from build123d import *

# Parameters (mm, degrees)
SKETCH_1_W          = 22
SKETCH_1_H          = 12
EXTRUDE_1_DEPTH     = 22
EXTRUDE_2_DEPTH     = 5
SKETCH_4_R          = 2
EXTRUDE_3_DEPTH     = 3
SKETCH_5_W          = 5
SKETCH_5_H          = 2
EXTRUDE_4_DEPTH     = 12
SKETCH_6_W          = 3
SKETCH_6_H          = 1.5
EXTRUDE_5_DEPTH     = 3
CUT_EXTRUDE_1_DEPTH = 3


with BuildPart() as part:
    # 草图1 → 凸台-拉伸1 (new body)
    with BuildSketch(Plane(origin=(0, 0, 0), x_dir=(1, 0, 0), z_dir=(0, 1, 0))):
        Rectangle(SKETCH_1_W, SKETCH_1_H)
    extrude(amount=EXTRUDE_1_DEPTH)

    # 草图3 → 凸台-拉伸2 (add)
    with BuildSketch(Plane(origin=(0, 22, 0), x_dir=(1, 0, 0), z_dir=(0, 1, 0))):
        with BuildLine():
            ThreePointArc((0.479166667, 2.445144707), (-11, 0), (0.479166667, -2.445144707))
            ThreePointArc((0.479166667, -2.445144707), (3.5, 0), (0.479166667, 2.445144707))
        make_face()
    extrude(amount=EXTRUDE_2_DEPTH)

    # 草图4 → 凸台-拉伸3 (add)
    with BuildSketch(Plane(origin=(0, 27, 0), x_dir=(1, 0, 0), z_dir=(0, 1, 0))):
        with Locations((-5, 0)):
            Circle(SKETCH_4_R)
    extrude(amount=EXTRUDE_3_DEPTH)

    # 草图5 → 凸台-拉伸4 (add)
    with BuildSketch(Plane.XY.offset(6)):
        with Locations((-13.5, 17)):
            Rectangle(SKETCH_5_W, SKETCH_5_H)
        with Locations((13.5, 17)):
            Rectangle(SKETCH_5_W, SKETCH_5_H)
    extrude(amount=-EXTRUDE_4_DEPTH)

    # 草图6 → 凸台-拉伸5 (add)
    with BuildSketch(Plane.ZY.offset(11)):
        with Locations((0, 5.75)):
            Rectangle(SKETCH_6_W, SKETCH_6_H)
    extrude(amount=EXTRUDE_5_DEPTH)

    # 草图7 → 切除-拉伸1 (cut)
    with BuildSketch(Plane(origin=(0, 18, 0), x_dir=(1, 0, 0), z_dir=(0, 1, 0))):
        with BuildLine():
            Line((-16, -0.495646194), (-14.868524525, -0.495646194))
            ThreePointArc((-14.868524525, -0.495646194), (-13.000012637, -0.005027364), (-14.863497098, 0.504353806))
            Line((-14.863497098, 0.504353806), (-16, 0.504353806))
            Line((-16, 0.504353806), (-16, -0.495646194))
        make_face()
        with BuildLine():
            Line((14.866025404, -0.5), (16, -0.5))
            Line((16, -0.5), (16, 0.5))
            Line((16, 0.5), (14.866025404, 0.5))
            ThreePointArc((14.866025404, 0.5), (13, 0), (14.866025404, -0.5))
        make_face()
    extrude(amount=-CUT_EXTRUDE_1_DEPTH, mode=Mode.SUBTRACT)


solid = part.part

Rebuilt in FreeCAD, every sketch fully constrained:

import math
import FreeCAD as App
import Part
import Sketcher

V = App.Vector
Q = App.Units.Quantity

doc = App.newDocument("Part")
params = doc.addObject("Spreadsheet::Sheet", "Params")
for row, (alias, value) in enumerate([
    ("sketch1_width", "22 mm"),
    ("sketch1_height", "12 mm"),
    ("pad1_length", "22 mm"),
    ("sketch2_radius", "6 mm"),
    ("sketch2_radius2", "2.5 mm"),
    ("pad2_length", "5 mm"),
    ("sketch3_diameter", "4 mm"),
    ("pad3_length", "3 mm"),
    ("sketch4_width", "5 mm"),
    ("sketch4_height", "2 mm"),
    ("pad4_length", "12 mm"),
    ("sketch5_height", "3 mm"),
    ("sketch5_width", "1.5 mm"),
    ("pad5_length", "3 mm"),
    ("sketch6_radius", "1 mm"),
    ("sketch6_height", "1 mm"),
    ("pocket1_length", "3 mm"),
], start=1):
    params.set(f"A{row}", alias)
    params.set(f"B{row}", "=" + value)
    params.setAlias(f"B{row}", alias)

body = doc.addObject("PartDesign::Body", "Body")

sketch1 = doc.addObject("Sketcher::SketchObject", "Sketch")
body.addObject(sketch1)
sketch1.AttachmentSupport = (doc.XZ_Plane, [""])
sketch1.MapMode = "FlatFace"
sketch1.addGeometry([
    Part.LineSegment(V(-11, -6, 0), V(-11, 6, 0)),
    Part.LineSegment(V(-11, 6, 0), V(11, 6, 0)),
    Part.LineSegment(V(11, 6, 0), V(11, -6, 0)),
    Part.LineSegment(V(11, -6, 0), V(-11, -6, 0)),
], False)
sketch1.addConstraint([
    Sketcher.Constraint("Coincident", 0, 2, 1, 1),
    Sketcher.Constraint("Coincident", 1, 2, 2, 1),
    Sketcher.Constraint("Coincident", 2, 2, 3, 1),
    Sketcher.Constraint("Coincident", 3, 2, 0, 1),
    Sketcher.Constraint("Vertical", 0),
    Sketcher.Constraint("Horizontal", 1),
    Sketcher.Constraint("Vertical", 2),
    Sketcher.Constraint("Horizontal", 3),
    Sketcher.Constraint("Symmetric", 0, 2, 2, 2, -1, 1),
    Sketcher.Constraint("DistanceX", 1, 1, 1, 2, Q("22 mm")),
    Sketcher.Constraint("DistanceY", 0, 1, 0, 2, Q("12 mm")),
])
sketch1.setExpression("Constraints[9]", "Params.sketch1_width")
sketch1.setExpression("Constraints[10]", "Params.sketch1_height")
pad1 = doc.addObject("PartDesign::Pad", "Pad")
body.addObject(pad1)
pad1.Profile = sketch1
pad1.setExpression("Length", "Params.pad1_length")
pad1.Reversed = True

sketch2 = doc.addObject("Sketcher::SketchObject", "Sketch001")
body.addObject(sketch2)
sketch2.AttachmentSupport = (doc.XZ_Plane, [""])
sketch2.MapMode = "FlatFace"
sketch2.AttachmentOffset = App.Placement(V(0, 0, -22), App.Rotation())
sketch2.addGeometry([
    Part.ArcOfCircle(Part.Circle(V(-5, 0, 0), V(0, 0, 1), 6), math.radians(24), math.radians(336)),
    Part.ArcOfCircle(Part.Circle(V(1, 0, 0), V(0, 0, 1), 2.5), math.radians(-102), math.radians(102)),
], False)
sketch2.addConstraint([
    Sketcher.Constraint("Coincident", 0, 1, 1, 2),
    Sketcher.Constraint("Coincident", 1, 1, 0, 2),
    Sketcher.Constraint("Symmetric", 0, 1, 1, 1, -1),
    Sketcher.Constraint("Radius", 0, Q("6 mm")),
    Sketcher.Constraint("Radius", 1, Q("2.5 mm")),
    Sketcher.Constraint("DistanceX", 0, 3, -1, 1, Q("5 mm")),
    Sketcher.Constraint("DistanceX", -1, 1, 1, 3, Q("1 mm")),
])
sketch2.setExpression("Constraints[3]", "Params.sketch2_radius")
sketch2.setExpression("Constraints[4]", "Params.sketch2_radius2")
pad2 = doc.addObject("PartDesign::Pad", "Pad001")
body.addObject(pad2)
pad2.Profile = sketch2
pad2.setExpression("Length", "Params.pad2_length")
pad2.Reversed = True

sketch3 = doc.addObject("Sketcher::SketchObject", "Sketch002")
body.addObject(sketch3)
sketch3.AttachmentSupport = (doc.XZ_Plane, [""])
sketch3.MapMode = "FlatFace"
sketch3.AttachmentOffset = App.Placement(V(0, 0, -27), App.Rotation())
sketch3.addGeometry(Part.Circle(V(-5, 0, 0), V(0, 0, 1), 2), False)
sketch3.addConstraint([
    Sketcher.Constraint("PointOnObject", 0, 3, -1),
    Sketcher.Constraint("Diameter", 0, Q("4 mm")),
    Sketcher.Constraint("DistanceX", 0, 3, -1, 1, Q("5 mm")),
])
sketch3.setExpression("Constraints[1]", "Params.sketch3_diameter")
pad3 = doc.addObject("PartDesign::Pad", "Pad002")
body.addObject(pad3)
pad3.Profile = sketch3
pad3.setExpression("Length", "Params.pad3_length")
pad3.Reversed = True

sketch4 = doc.addObject("Sketcher::SketchObject", "Sketch003")
body.addObject(sketch4)
sketch4.AttachmentSupport = (doc.XY_Plane, [""])
sketch4.MapMode = "FlatFace"
sketch4.AttachmentOffset = App.Placement(V(0, 0, 6), App.Rotation())
sketch4.addGeometry([
    Part.LineSegment(V(-16, 18, 0), V(-16, 16, 0)),
    Part.LineSegment(V(-16, 16, 0), V(-11, 16, 0)),
    Part.LineSegment(V(-11, 16, 0), V(-11, 18, 0)),
    Part.LineSegment(V(-11, 18, 0), V(-16, 18, 0)),
    Part.LineSegment(V(11, 18, 0), V(11, 16, 0)),
    Part.LineSegment(V(11, 16, 0), V(16, 16, 0)),
    Part.LineSegment(V(16, 16, 0), V(16, 18, 0)),
    Part.LineSegment(V(16, 18, 0), V(11, 18, 0)),
], False)
sketch4.addConstraint([
    Sketcher.Constraint("Coincident", 0, 2, 1, 1),
    Sketcher.Constraint("Coincident", 1, 2, 2, 1),
    Sketcher.Constraint("Coincident", 2, 2, 3, 1),
    Sketcher.Constraint("Coincident", 3, 2, 0, 1),
    Sketcher.Constraint("Coincident", 4, 2, 5, 1),
    Sketcher.Constraint("Coincident", 5, 2, 6, 1),
    Sketcher.Constraint("Coincident", 6, 2, 7, 1),
    Sketcher.Constraint("Coincident", 7, 2, 4, 1),
    Sketcher.Constraint("Vertical", 0),
    Sketcher.Constraint("Horizontal", 1),
    Sketcher.Constraint("Vertical", 2),
    Sketcher.Constraint("Horizontal", 3),
    Sketcher.Constraint("Vertical", 4),
    Sketcher.Constraint("Horizontal", 5),
    Sketcher.Constraint("Vertical", 6),
    Sketcher.Constraint("Horizontal", 7),
    Sketcher.Constraint("Symmetric", 1, 2, 4, 2, -2),
    Sketcher.Constraint("Symmetric", 3, 2, 6, 2, -2),
    Sketcher.Constraint("DistanceX", 1, 1, 1, 2, Q("5 mm")),
    Sketcher.Constraint("DistanceY", 0, 2, 0, 1, Q("2 mm")),
    Sketcher.Constraint("DistanceX", 0, 2, -1, 1, Q("16 mm")),
    Sketcher.Constraint("DistanceY", -1, 1, 0, 2, Q("16 mm")),
])
sketch4.setExpression("Constraints[18]", "Params.sketch4_width")
sketch4.setExpression("Constraints[19]", "Params.sketch4_height")
pad4 = doc.addObject("PartDesign::Pad", "Pad003")
body.addObject(pad4)
pad4.Profile = sketch4
pad4.setExpression("Length", "Params.pad4_length")
pad4.Reversed = True

sketch5 = doc.addObject("Sketcher::SketchObject", "Sketch004")
body.addObject(sketch5)
sketch5.AttachmentSupport = (doc.YZ_Plane, [""])
sketch5.MapMode = "FlatFace"
sketch5.AttachmentOffset = App.Placement(V(0, 0, -11), App.Rotation())
sketch5.addGeometry([
    Part.LineSegment(V(6.5, -1.5, 0), V(5, -1.5, 0)),
    Part.LineSegment(V(5, -1.5, 0), V(5, 1.5, 0)),
    Part.LineSegment(V(5, 1.5, 0), V(6.5, 1.5, 0)),
    Part.LineSegment(V(6.5, 1.5, 0), V(6.5, -1.5, 0)),
], False)
sketch5.addConstraint([
    Sketcher.Constraint("Coincident", 0, 2, 1, 1),
    Sketcher.Constraint("Coincident", 1, 2, 2, 1),
    Sketcher.Constraint("Coincident", 2, 2, 3, 1),
    Sketcher.Constraint("Coincident", 3, 2, 0, 1),
    Sketcher.Constraint("Horizontal", 0),
    Sketcher.Constraint("Vertical", 1),
    Sketcher.Constraint("Horizontal", 2),
    Sketcher.Constraint("Vertical", 3),
    Sketcher.Constraint("DistanceY", 1, 1, 1, 2, Q("3 mm")),
    Sketcher.Constraint("DistanceX", 0, 2, 0, 1, Q("1.5 mm")),
    Sketcher.Constraint("DistanceX", -1, 1, 0, 2, Q("5 mm")),
    Sketcher.Constraint("DistanceY", 0, 2, -1, 1, Q("1.5 mm")),
])
sketch5.setExpression("Constraints[8]", "Params.sketch5_height")
sketch5.setExpression("Constraints[9]", "Params.sketch5_width")
pad5 = doc.addObject("PartDesign::Pad", "Pad004")
body.addObject(pad5)
pad5.Profile = sketch5
pad5.setExpression("Length", "Params.pad5_length")
pad5.Reversed = True

sketch6 = doc.addObject("Sketcher::SketchObject", "Sketch005")
body.addObject(sketch6)
sketch6.AttachmentSupport = (doc.XZ_Plane, [""])
sketch6.MapMode = "FlatFace"
sketch6.AttachmentOffset = App.Placement(V(0, 0, -18), App.Rotation())
sketch6.addGeometry([
    Part.LineSegment(V(-16, 0.5, 0), V(-14.9, 0.5, 0)),
    Part.ArcOfCircle(Part.Circle(V(-14, 0, 0), V(0, 0, 1), 1), math.radians(-150), math.radians(150)),
    Part.LineSegment(V(-14.9, -0.5, 0), V(-16, -0.5, 0)),
    Part.LineSegment(V(-16, -0.5, 0), V(-16, 0.5, 0)),
    Part.LineSegment(V(14.9, 0.5, 0), V(16, 0.5, 0)),
    Part.LineSegment(V(16, 0.5, 0), V(16, -0.5, 0)),
    Part.LineSegment(V(16, -0.5, 0), V(14.9, -0.5, 0)),
    Part.ArcOfCircle(Part.Circle(V(14, 0, 0), V(0, 0, 1), 1), math.radians(30), math.radians(330)),
], False)
sketch6.addConstraint([
    Sketcher.Constraint("Coincident", 0, 2, 1, 2),
    Sketcher.Constraint("Coincident", 1, 1, 2, 1),
    Sketcher.Constraint("Coincident", 2, 2, 3, 1),
    Sketcher.Constraint("Coincident", 3, 2, 0, 1),
    Sketcher.Constraint("Coincident", 4, 2, 5, 1),
    Sketcher.Constraint("Coincident", 5, 2, 6, 1),
    Sketcher.Constraint("Coincident", 6, 2, 7, 2),
    Sketcher.Constraint("Coincident", 7, 1, 4, 1),
    Sketcher.Constraint("Horizontal", 0),
    Sketcher.Constraint("Horizontal", 2),
    Sketcher.Constraint("Vertical", 3),
    Sketcher.Constraint("Horizontal", 4),
    Sketcher.Constraint("Vertical", 5),
    Sketcher.Constraint("Horizontal", 6),
    Sketcher.Constraint("Equal", 1, 7),
    Sketcher.Constraint("Symmetric", 1, 3, 7, 3, -1, 1),
    Sketcher.Constraint("Symmetric", 6, 2, 7, 1, -1),
    Sketcher.Constraint("Equal", 3, 5),
    Sketcher.Constraint("Radius", 1, Q("1 mm")),
    Sketcher.Constraint("DistanceY", 3, 1, 3, 2, Q("1 mm")),
    Sketcher.Constraint("DistanceX", 1, 3, -1, 1, Q("14 mm")),
    Sketcher.Constraint("DistanceX", 2, 2, -1, 1, Q("16 mm")),
    Sketcher.Constraint("DistanceX", -1, 1, 4, 2, Q("16 mm")),
    Sketcher.Constraint("DistanceX", 0, 1, 0, 2, Q("1.131475 mm")),
])
sketch6.setExpression("Constraints[18]", "Params.sketch6_radius")
sketch6.setExpression("Constraints[19]", "Params.sketch6_height")
pocket1 = doc.addObject("PartDesign::Pocket", "Pocket")
body.addObject(pocket1)
pocket1.Profile = sketch6
pocket1.setExpression("Length", "Params.pocket1_length")
pocket1.Reversed = True

doc.recompute()
